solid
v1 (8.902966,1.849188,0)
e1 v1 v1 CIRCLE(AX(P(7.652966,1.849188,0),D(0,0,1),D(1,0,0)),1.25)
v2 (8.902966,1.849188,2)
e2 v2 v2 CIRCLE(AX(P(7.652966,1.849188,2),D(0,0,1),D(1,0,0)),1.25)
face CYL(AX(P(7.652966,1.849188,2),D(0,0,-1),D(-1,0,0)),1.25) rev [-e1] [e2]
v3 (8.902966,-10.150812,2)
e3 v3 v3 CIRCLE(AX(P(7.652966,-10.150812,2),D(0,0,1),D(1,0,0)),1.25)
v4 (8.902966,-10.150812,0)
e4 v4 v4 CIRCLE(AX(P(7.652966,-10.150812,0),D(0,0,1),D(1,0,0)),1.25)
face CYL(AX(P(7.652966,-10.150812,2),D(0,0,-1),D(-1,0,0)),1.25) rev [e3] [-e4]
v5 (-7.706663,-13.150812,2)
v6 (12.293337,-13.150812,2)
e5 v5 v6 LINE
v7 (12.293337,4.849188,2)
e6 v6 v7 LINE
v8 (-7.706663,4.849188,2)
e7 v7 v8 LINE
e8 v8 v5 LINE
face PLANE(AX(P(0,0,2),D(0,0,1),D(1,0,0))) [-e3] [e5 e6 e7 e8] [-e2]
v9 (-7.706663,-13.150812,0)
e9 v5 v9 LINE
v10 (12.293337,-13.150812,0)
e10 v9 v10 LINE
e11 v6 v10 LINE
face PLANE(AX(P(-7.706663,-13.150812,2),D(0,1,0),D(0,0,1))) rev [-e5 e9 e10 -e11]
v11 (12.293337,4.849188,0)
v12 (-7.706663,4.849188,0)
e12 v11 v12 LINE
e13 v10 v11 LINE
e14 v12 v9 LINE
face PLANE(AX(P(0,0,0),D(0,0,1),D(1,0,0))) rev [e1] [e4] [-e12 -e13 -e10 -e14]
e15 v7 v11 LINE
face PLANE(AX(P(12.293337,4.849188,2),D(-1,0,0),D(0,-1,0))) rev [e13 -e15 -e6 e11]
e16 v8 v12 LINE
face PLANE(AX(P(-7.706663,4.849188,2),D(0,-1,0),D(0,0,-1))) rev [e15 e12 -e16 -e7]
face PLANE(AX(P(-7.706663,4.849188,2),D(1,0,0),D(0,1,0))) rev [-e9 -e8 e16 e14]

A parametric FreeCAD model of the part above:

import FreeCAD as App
import Part
import Sketcher

V = App.Vector


def add_polygon(sketch, points):
    """Adds a closed chain of lines whose ends are joined by coincident constraints."""
    first, n = sketch.GeometryCount, len(points)
    for a, b in zip(points, points[1:] + points[:1]):
        sketch.addGeometry(Part.LineSegment(App.Vector(*a, 0), App.Vector(*b, 0)), False)
    for i in range(n):
        sketch.addConstraint(Sketcher.Constraint("Coincident", first + i, 2, first + (i + 1) % n, 1))

doc = App.newDocument("Part")
body = doc.addObject("PartDesign::Body", "Body")

sketch1 = body.newObject("Sketcher::SketchObject", "Sketch")
sketch1.AttachmentSupport = (doc.getObject("XY_Plane"), [""])
sketch1.MapMode = "FlatFace"
add_polygon(sketch1, [(-7.7, 4.8), (-7.7, -13.2), (12.3, -13.2), (12.3, 4.8)])
sketch1.addGeometry(Part.Circle(V(7.7, -10.2, 0), V(0, 0, 1), 1.2), False)
sketch1.addGeometry(Part.Circle(V(7.7, 1.8, 0), V(0, 0, 1), 1.2), False)
sketch1.addConstraint([
    Sketcher.Constraint("Vertical", 0),
    Sketcher.Constraint("Horizontal", 1),
    Sketcher.Constraint("Vertical", 2),
    Sketcher.Constraint("Horizontal", 3),
    Sketcher.Constraint("Equal", 4, 5),
    Sketcher.Constraint("Vertical", 4, 3, 5, 3),
    Sketcher.Constraint("Diameter", 4, 2.5),
    Sketcher.Constraint("DistanceX", 1, 1, 1, 2, 20.0),
    Sketcher.Constraint("DistanceY", 0, 2, 0, 1, 18.0),
    Sketcher.Constraint("DistanceY", 4, 3, 5, 3, 12.0),
    Sketcher.Constraint("DistanceY", 0, 2, 4, 3, 3.0),
    Sketcher.Constraint("DistanceX", 0, 2, 4, 3, 15.359629),
    Sketcher.Constraint("DistanceX", -1, 1, 4, 3, 7.652966),
    Sketcher.Constraint("DistanceY", 4, 3, -1, 1, 10.150812),
])
pad1 = body.newObject("PartDesign::Pad", "Pad")
pad1.Profile = sketch1
pad1.Length = 2

doc.recompute()
